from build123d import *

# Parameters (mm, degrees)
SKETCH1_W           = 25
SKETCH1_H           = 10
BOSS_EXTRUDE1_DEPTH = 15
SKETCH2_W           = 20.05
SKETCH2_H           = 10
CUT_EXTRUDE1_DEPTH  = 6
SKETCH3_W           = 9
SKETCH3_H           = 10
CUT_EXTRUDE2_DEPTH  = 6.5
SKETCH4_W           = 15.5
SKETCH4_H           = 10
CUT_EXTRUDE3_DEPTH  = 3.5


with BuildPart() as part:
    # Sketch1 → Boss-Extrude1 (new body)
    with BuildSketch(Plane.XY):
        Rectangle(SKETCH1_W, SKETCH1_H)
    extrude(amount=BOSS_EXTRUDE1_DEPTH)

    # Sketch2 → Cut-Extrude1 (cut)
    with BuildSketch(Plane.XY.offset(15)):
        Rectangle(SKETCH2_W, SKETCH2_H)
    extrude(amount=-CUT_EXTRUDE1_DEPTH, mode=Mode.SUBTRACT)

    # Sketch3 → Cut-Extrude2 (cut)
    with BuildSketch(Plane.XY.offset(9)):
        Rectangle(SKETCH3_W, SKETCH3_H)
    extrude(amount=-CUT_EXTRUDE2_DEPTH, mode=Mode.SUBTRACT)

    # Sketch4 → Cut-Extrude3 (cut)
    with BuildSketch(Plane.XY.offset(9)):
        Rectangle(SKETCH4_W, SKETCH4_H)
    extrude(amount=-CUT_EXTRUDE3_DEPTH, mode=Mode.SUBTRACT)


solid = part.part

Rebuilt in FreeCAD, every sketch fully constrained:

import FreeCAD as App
import Part
import Sketcher
Q = App.Units.Quantity


def add_polygon(sketch, points):
    """Adds a closed chain of lines whose ends are joined by coincident constraints."""
    first, n = sketch.GeometryCount, len(points)
    for a, b in zip(points, points[1:] + points[:1]):
        sketch.addGeometry(Part.LineSegment(App.Vector(*a, 0), App.Vector(*b, 0)), False)
    for i in range(n):
        sketch.addConstraint(Sketcher.Constraint("Coincident", first + i, 2, first + (i + 1) % n, 1))

doc = App.newDocument("Part")
body = doc.addObject("PartDesign::Body", "Body")

sketch1 = body.newObject("Sketcher::SketchObject", "Sketch")
sketch1.AttachmentSupport = (doc.getObject("XY_Plane"), [""])
sketch1.MapMode = "FlatFace"
add_polygon(sketch1, [(-12, 5), (-12, -5), (12, -5), (12, 5)])
sketch1.addConstraint(Sketcher.Constraint("Vertical", 0))
sketch1.addConstraint(Sketcher.Constraint("Horizontal", 1))
sketch1.addConstraint(Sketcher.Constraint("Vertical", 2))
sketch1.addConstraint(Sketcher.Constraint("Horizontal", 3))
sketch1.addConstraint(Sketcher.Constraint("Symmetric", 0, 2, 2, 2, -1, 1))
sketch1.addConstraint(Sketcher.Constraint("DistanceX", 1, 1, 1, 2, Q("25 mm")))
sketch1.addConstraint(Sketcher.Constraint("DistanceY", 0, 2, 0, 1, Q("10 mm")))
pad1 = body.newObject("PartDesign::Pad", "Pad")
pad1.Profile = sketch1
pad1.Length = 15

sketch2 = body.newObject("Sketcher::SketchObject", "Sketch001")
sketch2.AttachmentSupport = (doc.getObject("XY_Plane"), [""])
sketch2.MapMode = "FlatFace"
sketch2.AttachmentOffset = App.Placement(App.Vector(0, 0, 15), App.Rotation())
add_polygon(sketch2, [(-10, 5), (-10, -5), (10, -5), (10, 5)])
sketch2.addConstraint(Sketcher.Constraint("Vertical", 0))
sketch2.addConstraint(Sketcher.Constraint("Horizontal", 1))
sketch2.addConstraint(Sketcher.Constraint("Vertical", 2))
sketch2.addConstraint(Sketcher.Constraint("Horizontal", 3))
sketch2.addConstraint(Sketcher.Constraint("Symmetric", 0, 2, 2, 2, -1, 1))
sketch2.addConstraint(Sketcher.Constraint("DistanceY", 0, 2, 0, 1, Q("10 mm")))
sketch2.addConstraint(Sketcher.Constraint("DistanceX", 1, 1, 1, 2, Q("20.05 mm")))
pocket1 = body.newObject("PartDesign::Pocket", "Pocket")
pocket1.Profile = sketch2
pocket1.Length = 6

sketch3 = body.newObject("Sketcher::SketchObject", "Sketch002")
sketch3.AttachmentSupport = (doc.getObject("XY_Plane"), [""])
sketch3.MapMode = "FlatFace"
sketch3.AttachmentOffset = App.Placement(App.Vector(0, 0, 9), App.Rotation())
add_polygon(sketch3, [(-4, 5), (-4, -5), (4, -5), (4, 5)])
sketch3.addConstraint(Sketcher.Constraint("Vertical", 0))
sketch3.addConstraint(Sketcher.Constraint("Horizontal", 1))
sketch3.addConstraint(Sketcher.Constraint("Vertical", 2))
sketch3.addConstraint(Sketcher.Constraint("Horizontal", 3))
sketch3.addConstraint(Sketcher.Constraint("Symmetric", 0, 2, 2, 2, -1, 1))
sketch3.addConstraint(Sketcher.Constraint("DistanceX", 1, 1, 1, 2, Q("9 mm")))
sketch3.addConstraint(Sketcher.Constraint("DistanceY", 0, 2, 0, 1, Q("10 mm")))
pocket2 = body.newObject("PartDesign::Pocket", "Pocket001")
pocket2.Profile = sketch3
pocket2.Length = 6.5

sketch4 = body.newObject("Sketcher::SketchObject", "Sketch003")
sketch4.AttachmentSupport = (doc.getObject("XY_Plane"), [""])
sketch4.MapMode = "FlatFace"
sketch4.AttachmentOffset = App.Placement(App.Vector(0, 0, 9), App.Rotation())
add_polygon(sketch4, [(-8, 5), (-8, -5), (8, -5), (8, 5)])
sketch4.addConstraint(Sketcher.Constraint("Vertical", 0))
sketch4.addConstraint(Sketcher.Constraint("Horizontal", 1))
sketch4.addConstraint(Sketcher.Constraint("Vertical", 2))
sketch4.addConstraint(Sketcher.Constraint("Horizontal", 3))
sketch4.addConstraint(Sketcher.Constraint("Symmetric", 0, 2, 2, 2, -1, 1))
sketch4.addConstraint(Sketcher.Constraint("DistanceY", 0, 2, 0, 1, Q("10 mm")))
sketch4.addConstraint(Sketcher.Constraint("DistanceX", 1, 1, 1, 2, Q("15.5 mm")))
pocket3 = body.newObject("PartDesign::Pocket", "Pocket002")
pocket3.Profile = sketch4
pocket3.Length = 3.5

doc.recompute()
